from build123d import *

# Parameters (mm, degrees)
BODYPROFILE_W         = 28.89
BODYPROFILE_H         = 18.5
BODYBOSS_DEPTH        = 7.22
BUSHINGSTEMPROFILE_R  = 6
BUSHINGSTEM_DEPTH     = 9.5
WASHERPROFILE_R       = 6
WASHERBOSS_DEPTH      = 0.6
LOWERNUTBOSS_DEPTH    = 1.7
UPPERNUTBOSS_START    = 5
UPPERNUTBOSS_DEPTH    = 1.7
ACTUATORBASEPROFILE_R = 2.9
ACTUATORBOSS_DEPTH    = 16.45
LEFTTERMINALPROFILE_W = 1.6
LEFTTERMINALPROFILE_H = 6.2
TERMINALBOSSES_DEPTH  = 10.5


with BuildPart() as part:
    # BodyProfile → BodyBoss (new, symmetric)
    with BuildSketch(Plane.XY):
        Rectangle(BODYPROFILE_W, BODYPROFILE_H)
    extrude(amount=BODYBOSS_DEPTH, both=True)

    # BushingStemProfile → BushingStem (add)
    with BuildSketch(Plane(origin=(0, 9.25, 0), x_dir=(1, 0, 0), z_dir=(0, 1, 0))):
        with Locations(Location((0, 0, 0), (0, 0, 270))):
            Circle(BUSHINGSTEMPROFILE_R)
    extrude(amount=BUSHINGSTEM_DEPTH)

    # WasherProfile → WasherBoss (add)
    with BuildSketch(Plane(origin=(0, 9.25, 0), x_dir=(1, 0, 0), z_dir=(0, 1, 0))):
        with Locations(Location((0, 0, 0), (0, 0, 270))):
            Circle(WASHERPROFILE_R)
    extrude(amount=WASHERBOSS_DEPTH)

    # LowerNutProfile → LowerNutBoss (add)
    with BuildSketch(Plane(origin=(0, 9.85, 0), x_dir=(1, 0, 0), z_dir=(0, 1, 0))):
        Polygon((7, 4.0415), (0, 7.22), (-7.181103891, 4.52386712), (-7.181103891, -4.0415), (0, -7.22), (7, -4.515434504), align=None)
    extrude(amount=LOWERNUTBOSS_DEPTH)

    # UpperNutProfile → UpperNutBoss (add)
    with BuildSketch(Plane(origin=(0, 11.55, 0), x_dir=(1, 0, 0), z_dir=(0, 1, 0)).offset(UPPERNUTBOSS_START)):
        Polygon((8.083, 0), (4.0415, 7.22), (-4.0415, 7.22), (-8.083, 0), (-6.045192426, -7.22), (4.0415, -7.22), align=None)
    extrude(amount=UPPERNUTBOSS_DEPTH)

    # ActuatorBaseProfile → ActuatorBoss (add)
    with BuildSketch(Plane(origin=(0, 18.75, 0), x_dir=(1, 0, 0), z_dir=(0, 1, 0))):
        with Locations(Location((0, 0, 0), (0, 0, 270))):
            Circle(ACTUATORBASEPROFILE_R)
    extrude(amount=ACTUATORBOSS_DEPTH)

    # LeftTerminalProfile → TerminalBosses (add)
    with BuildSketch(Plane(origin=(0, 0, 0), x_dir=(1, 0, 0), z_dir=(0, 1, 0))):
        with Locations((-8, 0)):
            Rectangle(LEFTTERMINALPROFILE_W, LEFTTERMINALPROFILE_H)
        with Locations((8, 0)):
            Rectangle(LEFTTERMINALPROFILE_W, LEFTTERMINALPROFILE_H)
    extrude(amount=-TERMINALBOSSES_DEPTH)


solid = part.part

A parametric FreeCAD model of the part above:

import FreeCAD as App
import Part
import Sketcher
from FreeCAD import Vector
Q = App.Units.Quantity

doc = App.newDocument("Part")
body = doc.addObject("PartDesign::Body", "Body")

# Sketch on XY plane
sketch1 = doc.addObject("Sketcher::SketchObject", "Sketch")
body.addObject(sketch1)
sketch1.AttachmentSupport = (doc.XY_Plane, [""])
sketch1.MapMode = "FlatFace"
sketch1.addGeometry(Part.LineSegment(Vector(-14, 9, 0), Vector(-14, -9, 0)), False)
sketch1.addGeometry(Part.LineSegment(Vector(-14, -9, 0), Vector(14, -9, 0)), False)
sketch1.addGeometry(Part.LineSegment(Vector(14, -9, 0), Vector(14, 9, 0)), False)
sketch1.addGeometry(Part.LineSegment(Vector(14, 9, 0), Vector(-14, 9, 0)), False)
sketch1.addConstraint(Sketcher.Constraint("Coincident", 0, 2, 1, 1))
sketch1.addConstraint(Sketcher.Constraint("Coincident", 1, 2, 2, 1))
sketch1.addConstraint(Sketcher.Constraint("Coincident", 2, 2, 3, 1))
sketch1.addConstraint(Sketcher.Constraint("Coincident", 3, 2, 0, 1))
sketch1.addConstraint(Sketcher.Constraint("Vertical", 0))
sketch1.addConstraint(Sketcher.Constraint("Horizontal", 1))
sketch1.addConstraint(Sketcher.Constraint("Vertical", 2))
sketch1.addConstraint(Sketcher.Constraint("Horizontal", 3))
sketch1.addConstraint(Sketcher.Constraint("Symmetric", 0, 2, 2, 2, -1, 1))
sketch1.addConstraint(Sketcher.Constraint("DistanceY", 0, 2, 0, 1, Q("18.5 mm")))
sketch1.addConstraint(Sketcher.Constraint("DistanceX", 1, 1, 1, 2, Q("28.89 mm")))
pad1 = doc.addObject("PartDesign::Pad", "Pad")
body.addObject(pad1)
pad1.Profile = sketch1
pad1.Length = 14.44
pad1.Midplane = True

# Sketch on XZ plane
sketch2 = doc.addObject("Sketcher::SketchObject", "Sketch001")
body.addObject(sketch2)
sketch2.AttachmentSupport = (doc.XZ_Plane, [""])
sketch2.MapMode = "FlatFace"
sketch2.AttachmentOffset = App.Placement(Vector(0, 0, -9.25), App.Rotation())
sketch2.addGeometry(Part.Circle(Vector(0, 0, 0), Vector(0, 0, 1), 6), False)
sketch2.addConstraint(Sketcher.Constraint("Coincident", 0, 3, -1, 1))
sketch2.addConstraint(Sketcher.Constraint("Diameter", 0, Q("12 mm")))
pad2 = doc.addObject("PartDesign::Pad", "Pad001")
body.addObject(pad2)
pad2.Profile = sketch2
pad2.Length = 9.5
pad2.Reversed = True

# Sketch on XZ plane
sketch3 = doc.addObject("Sketcher::SketchObject", "Sketch002")
body.addObject(sketch3)
sketch3.AttachmentSupport = (doc.XZ_Plane, [""])
sketch3.MapMode = "FlatFace"
sketch3.AttachmentOffset = App.Placement(Vector(0, 0, -9.25), App.Rotation())
sketch3.addGeometry(Part.Circle(Vector(0, 0, 0), Vector(0, 0, 1), 6), False)
sketch3.addConstraint(Sketcher.Constraint("Coincident", 0, 3, -1, 1))
sketch3.addConstraint(Sketcher.Constraint("Diameter", 0, Q("12 mm")))
pad3 = doc.addObject("PartDesign::Pad", "Pad002")
body.addObject(pad3)
pad3.Profile = sketch3
pad3.Length = 0.6
pad3.Reversed = True

# Sketch on XZ plane
sketch4 = doc.addObject("Sketcher::SketchObject", "Sketch003")
body.addObject(sketch4)
sketch4.AttachmentSupport = (doc.XZ_Plane, [""])
sketch4.MapMode = "FlatFace"
sketch4.AttachmentOffset = App.Placement(Vector(0, 0, -9.85), App.Rotation())
sketch4.addGeometry(Part.LineSegment(Vector(7, -4, 0), Vector(0, -7, 0)), False)
sketch4.addGeometry(Part.LineSegment(Vector(0, -7, 0), Vector(-7, -5, 0)), False)
sketch4.addGeometry(Part.LineSegment(Vector(-7, -5, 0), Vector(-7, 4, 0)), False)
sketch4.addGeometry(Part.LineSegment(Vector(-7, 4, 0), Vector(0, 7, 0)), False)
sketch4.addGeometry(Part.LineSegment(Vector(0, 7, 0), Vector(7, 5, 0)), False)
sketch4.addGeometry(Part.LineSegment(Vector(7, 5, 0), Vector(7, -4, 0)), False)
sketch4.addConstraint(Sketcher.Constraint("Coincident", 0, 2, 1, 1))
sketch4.addConstraint(Sketcher.Constraint("Coincident", 1, 2, 2, 1))
sketch4.addConstraint(Sketcher.Constraint("Coincident", 2, 2, 3, 1))
sketch4.addConstraint(Sketcher.Constraint("Coincident", 3, 2, 4, 1))
sketch4.addConstraint(Sketcher.Constraint("Coincident", 4, 2, 5, 1))
sketch4.addConstraint(Sketcher.Constraint("Coincident", 5, 2, 0, 1))
sketch4.addConstraint(Sketcher.Constraint("Vertical", 2))
sketch4.addConstraint(Sketcher.Constraint("Vertical", 5))
sketch4.addConstraint(Sketcher.Constraint("Symmetric", 0, 2, 3, 2, -1, 1))
sketch4.addConstraint(Sketcher.Constraint("PointOnObject", 0, 2, -2))
sketch4.addConstraint(Sketcher.Constraint("DistanceX", -1, 1, 4, 2, Q("7 mm")))
sketch4.addConstraint(Sketcher.Constraint("DistanceY", 0, 2, -1, 1, Q("7.22 mm")))
sketch4.addConstraint(Sketcher.Constraint("DistanceY", 5, 2, 2, 2, Q("8.083 mm")))
sketch4.addConstraint(Sketcher.Constraint("DistanceY", -1, 1, 2, 2, Q("4.0415 mm")))
sketch4.addConstraint(Sketcher.Constraint("DistanceY", 1, 2, 4, 2, Q("9.039302 mm")))
sketch4.addConstraint(Sketcher.Constraint("Distance", 4, Q("7.50431 mm")))
sketch4.addConstraint(Sketcher.Constraint("Distance", 1, Q("7.670553 mm")))
pad4 = doc.addObject("PartDesign::Pad", "Pad003")
body.addObject(pad4)
pad4.Profile = sketch4
pad4.Length = 1.7
pad4.Reversed = True

# Sketch on XZ plane
sketch5 = doc.addObject("Sketcher::SketchObject", "Sketch004")
body.addObject(sketch5)
sketch5.AttachmentSupport = (doc.XZ_Plane, [""])
sketch5.MapMode = "FlatFace"
sketch5.AttachmentOffset = App.Placement(Vector(0, 0, -16.55), App.Rotation())
sketch5.addGeometry(Part.LineSegment(Vector(8, 0, 0), Vector(4, -7, 0)), False)
sketch5.addGeometry(Part.LineSegment(Vector(4, -7, 0), Vector(-4, -7, 0)), False)
sketch5.addGeometry(Part.LineSegment(Vector(-4, -7, 0), Vector(-8, 0, 0)), False)
sketch5.addGeometry(Part.LineSegment(Vector(-8, 0, 0), Vector(-6, 7, 0)), False)
sketch5.addGeometry(Part.LineSegment(Vector(-6, 7, 0), Vector(4, 7, 0)), False)
sketch5.addGeometry(Part.LineSegment(Vector(4, 7, 0), Vector(8, 0, 0)), False)
sketch5.addConstraint(Sketcher.Constraint("Coincident", 0, 2, 1, 1))
sketch5.addConstraint(Sketcher.Constraint("Coincident", 1, 2, 2, 1))
sketch5.addConstraint(Sketcher.Constraint("Coincident", 2, 2, 3, 1))
sketch5.addConstraint(Sketcher.Constraint("Coincident", 3, 2, 4, 1))
sketch5.addConstraint(Sketcher.Constraint("Coincident", 4, 2, 5, 1))
sketch5.addConstraint(Sketcher.Constraint("Coincident", 5, 2, 0, 1))
sketch5.addConstraint(Sketcher.Constraint("Horizontal", 1))
sketch5.addConstraint(Sketcher.Constraint("Horizontal", 4))
sketch5.addConstraint(Sketcher.Constraint("Symmetric", 1, 2, 4, 2, -1, 1))
sketch5.addConstraint(Sketcher.Constraint("Symmetric", 2, 2, 5, 2, -1, 1))
sketch5.addConstraint(Sketcher.Constraint("PointOnObject", 2, 2, -1))
sketch5.addConstraint(Sketcher.Constraint("Vertical", 0, 2, 4, 2))
sketch5.addConstraint(Sketcher.Constraint("DistanceX", 1, 2, 1, 1, Q("8.083 mm")))
sketch5.addConstraint(Sketcher.Constraint("DistanceY", 0, 2, -1, 1, Q("7.22 mm")))
sketch5.addConstraint(Sketcher.Constraint("DistanceX", 2, 2, -1, 1, Q("8.083 mm")))
sketch5.addConstraint(Sketcher.Constraint("Distance", 3, Q("7.50207 mm")))
pad5 = doc.addObject("PartDesign::Pad", "Pad004")
body.addObject(pad5)
pad5.Profile = sketch5
pad5.Length = 1.7
pad5.Reversed = True

# Sketch on XZ plane
sketch6 = doc.addObject("Sketcher::SketchObject", "Sketch005")
body.addObject(sketch6)
sketch6.AttachmentSupport = (doc.XZ_Plane, [""])
sketch6.MapMode = "FlatFace"
sketch6.AttachmentOffset = App.Placement(Vector(0, 0, -18.75), App.Rotation())
sketch6.addGeometry(Part.Circle(Vector(0, 0, 0), Vector(0, 0, 1), 2.9), False)
sketch6.addConstraint(Sketcher.Constraint("Coincident", 0, 3, -1, 1))
sketch6.addConstraint(Sketcher.Constraint("Diameter", 0, Q("5.8 mm")))
pad6 = doc.addObject("PartDesign::Pad", "Pad005")
body.addObject(pad6)
pad6.Profile = sketch6
pad6.Length = 16.45
pad6.Reversed = True

# Sketch on XZ plane
sketch7 = doc.addObject("Sketcher::SketchObject", "Sketch006")
body.addObject(sketch7)
sketch7.AttachmentSupport = (doc.XZ_Plane, [""])
sketch7.MapMode = "FlatFace"
sketch7.addGeometry(Part.LineSegment(Vector(-8.8, -3.1, 0), Vector(-8.8, 3.1, 0)), False)
sketch7.addGeometry(Part.LineSegment(Vector(-8.8, 3.1, 0), Vector(-7.2, 3.1, 0)), False)
sketch7.addGeometry(Part.LineSegment(Vector(-7.2, 3.1, 0), Vector(-7.2, -3.1, 0)), False)
sketch7.addGeometry(Part.LineSegment(Vector(-7.2, -3.1, 0), Vector(-8.8, -3.1, 0)), False)
sketch7.addGeometry(Part.LineSegment(Vector(7.2, -3.1, 0), Vector(7.2, 3.1, 0)), False)
sketch7.addGeometry(Part.LineSegment(Vector(7.2, 3.1, 0), Vector(8.8, 3.1, 0)), False)
sketch7.addGeometry(Part.LineSegment(Vector(8.8, 3.1, 0), Vector(8.8, -3.1, 0)), False)
sketch7.addGeometry(Part.LineSegment(Vector(8.8, -3.1, 0), Vector(7.2, -3.1, 0)), False)
sketch7.addConstraint(Sketcher.Constraint("Coincident", 0, 2, 1, 1))
sketch7.addConstraint(Sketcher.Constraint("Coincident", 1, 2, 2, 1))
sketch7.addConstraint(Sketcher.Constraint("Coincident", 2, 2, 3, 1))
sketch7.addConstraint(Sketcher.Constraint("Coincident", 3, 2, 0, 1))
sketch7.addConstraint(Sketcher.Constraint("Coincident", 4, 2, 5, 1))
sketch7.addConstraint(Sketcher.Constraint("Coincident", 5, 2, 6, 1))
sketch7.addConstraint(Sketcher.Constraint("Coincident", 6, 2, 7, 1))
sketch7.addConstraint(Sketcher.Constraint("Coincident", 7, 2, 4, 1))
sketch7.addConstraint(Sketcher.Constraint("Vertical", 0))
sketch7.addConstraint(Sketcher.Constraint("Horizontal", 1))
sketch7.addConstraint(Sketcher.Constraint("Vertical", 2))
sketch7.addConstraint(Sketcher.Constraint("Horizontal", 3))
sketch7.addConstraint(Sketcher.Constraint("Vertical", 4))
sketch7.addConstraint(Sketcher.Constraint("Horizontal", 5))
sketch7.addConstraint(Sketcher.Constraint("Vertical", 6))
sketch7.addConstraint(Sketcher.Constraint("Horizontal", 7))
sketch7.addConstraint(Sketcher.Constraint("Symmetric", 2, 2, 4, 2, -1, 1))
sketch7.addConstraint(Sketcher.Constraint("Symmetric", 0, 2, 6, 2, -1, 1))
sketch7.addConstraint(Sketcher.Constraint("Horizontal", 1, 2, 4, 2))
sketch7.addConstraint(Sketcher.Constraint("DistanceX", 1, 1, 1, 2, Q("1.6 mm")))
sketch7.addConstraint(Sketcher.Constraint("DistanceY", 0, 1, 0, 2, Q("6.2 mm")))
sketch7.addConstraint(Sketcher.Constraint("DistanceX", 0, 2, 4, 2, Q("16 mm")))
pad7 = doc.addObject("PartDesign::Pad", "Pad006")
body.addObject(pad7)
pad7.Profile = sketch7
pad7.Length = 10.5

doc.recompute()
